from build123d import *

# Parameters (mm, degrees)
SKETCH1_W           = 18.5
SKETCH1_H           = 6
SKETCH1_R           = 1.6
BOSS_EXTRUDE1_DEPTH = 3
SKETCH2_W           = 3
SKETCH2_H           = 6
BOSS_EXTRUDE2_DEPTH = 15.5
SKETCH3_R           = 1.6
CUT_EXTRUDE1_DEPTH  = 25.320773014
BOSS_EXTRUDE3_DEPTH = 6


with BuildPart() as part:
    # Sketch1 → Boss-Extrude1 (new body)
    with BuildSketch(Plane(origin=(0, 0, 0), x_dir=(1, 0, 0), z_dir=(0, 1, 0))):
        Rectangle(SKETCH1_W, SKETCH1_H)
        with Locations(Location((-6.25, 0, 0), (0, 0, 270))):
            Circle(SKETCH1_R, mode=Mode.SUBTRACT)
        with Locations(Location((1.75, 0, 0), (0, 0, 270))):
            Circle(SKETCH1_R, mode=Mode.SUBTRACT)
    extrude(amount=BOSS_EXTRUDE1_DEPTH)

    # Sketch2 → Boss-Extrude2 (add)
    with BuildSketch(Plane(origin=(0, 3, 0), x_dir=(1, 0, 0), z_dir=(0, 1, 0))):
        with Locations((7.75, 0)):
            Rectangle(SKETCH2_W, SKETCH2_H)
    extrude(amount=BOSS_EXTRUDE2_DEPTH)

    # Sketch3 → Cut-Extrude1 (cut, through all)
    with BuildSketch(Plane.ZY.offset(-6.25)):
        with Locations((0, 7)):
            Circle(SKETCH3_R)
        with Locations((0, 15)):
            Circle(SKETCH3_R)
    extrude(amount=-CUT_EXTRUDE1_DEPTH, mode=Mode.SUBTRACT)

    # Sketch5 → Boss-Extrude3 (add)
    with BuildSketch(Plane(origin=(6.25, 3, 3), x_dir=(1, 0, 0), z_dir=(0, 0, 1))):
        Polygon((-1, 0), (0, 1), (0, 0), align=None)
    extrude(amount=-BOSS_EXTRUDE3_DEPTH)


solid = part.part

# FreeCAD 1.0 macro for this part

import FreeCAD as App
import Part
import Sketcher


def add_polygon(sketch, points):
    """Adds a closed chain of lines whose ends are joined by coincident constraints."""
    first, n = sketch.GeometryCount, len(points)
    for a, b in zip(points, points[1:] + points[:1]):
        sketch.addGeometry(Part.LineSegment(App.Vector(*a, 0), App.Vector(*b, 0)), False)
    for i in range(n):
        sketch.addConstraint(Sketcher.Constraint("Coincident", first + i, 2, first + (i + 1) % n, 1))

doc = App.newDocument("Part")
params = doc.addObject("Spreadsheet::Sheet", "Params")
for row, (alias, value) in enumerate([
    ("sketch1_diameter", "3.2 mm"),
    ("sketch1_height", "6 mm"),
    ("sketch1_width", "18.5 mm"),
    ("pad1_length", "3 mm"),
    ("sketch2_width", "3 mm"),
    ("sketch2_height", "6 mm"),
    ("pad2_length", "15.5 mm"),
    ("sketch3_diameter", "3.2 mm"),
    ("sketch4_width", "1 mm"),
    ("pad3_length", "6 mm"),
], start=1):
    params.set(f"A{row}", alias)
    params.set(f"B{row}", "=" + value)
    params.setAlias(f"B{row}", alias)

body = doc.addObject("PartDesign::Body", "Body")

sketch1 = body.newObject("Sketcher::SketchObject", "Sketch")
sketch1.AttachmentSupport = (doc.getObject("XZ_Plane"), [""])
sketch1.MapMode = "FlatFace"
add_polygon(sketch1, [(-9.2, -3), (-9.2, 3), (9.2, 3), (9.2, -3)])
sketch1.addGeometry(Part.Circle(App.Vector(-6.2, 0, 0), App.Vector(0, 0, 1), 1.6), False)
sketch1.addGeometry(Part.Circle(App.Vector(1.8, 0, 0), App.Vector(0, 0, 1), 1.6), False)
sketch1.addConstraint([
    Sketcher.Constraint("Vertical", 0),
    Sketcher.Constraint("Horizontal", 1),
    Sketcher.Constraint("Vertical", 2),
    Sketcher.Constraint("Horizontal", 3),
    Sketcher.Constraint("Equal", 4, 5),
    Sketcher.Constraint("Symmetric", 0, 2, 2, 2, -1, 1),
    Sketcher.Constraint("PointOnObject", 4, 3, -1),
    Sketcher.Constraint("PointOnObject", 5, 3, -1),
    Sketcher.Constraint("Diameter", 4, 3.2),
    Sketcher.Constraint("DistanceY", 0, 1, 0, 2, 6.0),
    Sketcher.Constraint("DistanceX", 1, 1, 1, 2, 18.5),
    Sketcher.Constraint("DistanceX", 4, 3, 5, 3, 8.0),
    Sketcher.Constraint("DistanceX", 0, 2, 4, 3, 3.0),
])
sketch1.setExpression("Constraints[12]", "Params.sketch1_diameter")
sketch1.setExpression("Constraints[13]", "Params.sketch1_height")
sketch1.setExpression("Constraints[14]", "Params.sketch1_width")
pad1 = body.newObject("PartDesign::Pad", "Pad")
pad1.Profile = sketch1
pad1.setExpression("Length", "Params.pad1_length")
pad1.Reversed = True

sketch2 = body.newObject("Sketcher::SketchObject", "Sketch001")
sketch2.AttachmentSupport = (doc.getObject("XZ_Plane"), [""])
sketch2.MapMode = "FlatFace"
sketch2.AttachmentOffset = App.Placement(App.Vector(0, 0, -3), App.Rotation())
add_polygon(sketch2, [(6.2, -3), (6.2, 3), (9.2, 3), (9.2, -3)])
sketch2.addConstraint([
    Sketcher.Constraint("Vertical", 0),
    Sketcher.Constraint("Horizontal", 1),
    Sketcher.Constraint("Vertical", 2),
    Sketcher.Constraint("Horizontal", 3),
    Sketcher.Constraint("DistanceX", 1, 1, 1, 2, 3.0),
    Sketcher.Constraint("DistanceY", 0, 1, 0, 2, 6.0),
    Sketcher.Constraint("DistanceY", -1, 1, 0, 2, 3.0),
    Sketcher.Constraint("DistanceX", -1, 1, 0, 2, 6.25),
])
sketch2.setExpression("Constraints[8]", "Params.sketch2_width")
sketch2.setExpression("Constraints[9]", "Params.sketch2_height")
pad2 = body.newObject("PartDesign::Pad", "Pad001")
pad2.Profile = sketch2
pad2.setExpression("Length", "Params.pad2_length")
pad2.Reversed = True

sketch3 = body.newObject("Sketcher::SketchObject", "Sketch002")
sketch3.AttachmentSupport = (doc.getObject("YZ_Plane"), [""])
sketch3.MapMode = "FlatFace"
sketch3.AttachmentOffset = App.Placement(App.Vector(0, 0, 6.25), App.Rotation())
sketch3.addGeometry([
    Part.Circle(App.Vector(7, 0, 0), App.Vector(0, 0, 1), 1.6),
    Part.Circle(App.Vector(15, 0, 0), App.Vector(0, 0, 1), 1.6),
], False)
sketch3.addConstraint([
    Sketcher.Constraint("Equal", 0, 1),
    Sketcher.Constraint("PointOnObject", 0, 3, -1),
    Sketcher.Constraint("PointOnObject", 1, 3, -1),
    Sketcher.Constraint("Diameter", 0, 3.2),
    Sketcher.Constraint("DistanceX", -1, 1, 0, 3, 7.0),
    Sketcher.Constraint("DistanceX", -1, 1, 1, 3, 15.0),
])
sketch3.setExpression("Constraints[3]", "Params.sketch3_diameter")
pocket1 = body.newObject("PartDesign::Pocket", "Pocket")
pocket1.Profile = sketch3
pocket1.Type = "ThroughAll"
pocket1.Reversed = True

sketch4 = body.newObject("Sketcher::SketchObject", "Sketch003")
sketch4.AttachmentSupport = (doc.getObject("XY_Plane"), [""])
sketch4.MapMode = "FlatFace"
sketch4.AttachmentOffset = App.Placement(App.Vector(0, 0, 3), App.Rotation())
add_polygon(sketch4, [(6.2, 4), (5.2, 3), (6.2, 3)])
sketch4.addConstraint([
    Sketcher.Constraint("Horizontal", 1),
    Sketcher.Constraint("Vertical", 2),
    Sketcher.Constraint("Equal", 1, 2),
    Sketcher.Constraint("DistanceX", 1, 1, 1, 2, 1.0),
    Sketcher.Constraint("DistanceY", -1, 1, 0, 2, 3.0),
    Sketcher.Constraint("DistanceX", -1, 1, 0, 2, 5.25),
])
sketch4.setExpression("Constraints[6]", "Params.sketch4_width")
pad3 = body.newObject("PartDesign::Pad", "Pad002")
pad3.Profile = sketch4
pad3.setExpression("Length", "Params.pad3_length")
pad3.Reversed = True

doc.recompute()
